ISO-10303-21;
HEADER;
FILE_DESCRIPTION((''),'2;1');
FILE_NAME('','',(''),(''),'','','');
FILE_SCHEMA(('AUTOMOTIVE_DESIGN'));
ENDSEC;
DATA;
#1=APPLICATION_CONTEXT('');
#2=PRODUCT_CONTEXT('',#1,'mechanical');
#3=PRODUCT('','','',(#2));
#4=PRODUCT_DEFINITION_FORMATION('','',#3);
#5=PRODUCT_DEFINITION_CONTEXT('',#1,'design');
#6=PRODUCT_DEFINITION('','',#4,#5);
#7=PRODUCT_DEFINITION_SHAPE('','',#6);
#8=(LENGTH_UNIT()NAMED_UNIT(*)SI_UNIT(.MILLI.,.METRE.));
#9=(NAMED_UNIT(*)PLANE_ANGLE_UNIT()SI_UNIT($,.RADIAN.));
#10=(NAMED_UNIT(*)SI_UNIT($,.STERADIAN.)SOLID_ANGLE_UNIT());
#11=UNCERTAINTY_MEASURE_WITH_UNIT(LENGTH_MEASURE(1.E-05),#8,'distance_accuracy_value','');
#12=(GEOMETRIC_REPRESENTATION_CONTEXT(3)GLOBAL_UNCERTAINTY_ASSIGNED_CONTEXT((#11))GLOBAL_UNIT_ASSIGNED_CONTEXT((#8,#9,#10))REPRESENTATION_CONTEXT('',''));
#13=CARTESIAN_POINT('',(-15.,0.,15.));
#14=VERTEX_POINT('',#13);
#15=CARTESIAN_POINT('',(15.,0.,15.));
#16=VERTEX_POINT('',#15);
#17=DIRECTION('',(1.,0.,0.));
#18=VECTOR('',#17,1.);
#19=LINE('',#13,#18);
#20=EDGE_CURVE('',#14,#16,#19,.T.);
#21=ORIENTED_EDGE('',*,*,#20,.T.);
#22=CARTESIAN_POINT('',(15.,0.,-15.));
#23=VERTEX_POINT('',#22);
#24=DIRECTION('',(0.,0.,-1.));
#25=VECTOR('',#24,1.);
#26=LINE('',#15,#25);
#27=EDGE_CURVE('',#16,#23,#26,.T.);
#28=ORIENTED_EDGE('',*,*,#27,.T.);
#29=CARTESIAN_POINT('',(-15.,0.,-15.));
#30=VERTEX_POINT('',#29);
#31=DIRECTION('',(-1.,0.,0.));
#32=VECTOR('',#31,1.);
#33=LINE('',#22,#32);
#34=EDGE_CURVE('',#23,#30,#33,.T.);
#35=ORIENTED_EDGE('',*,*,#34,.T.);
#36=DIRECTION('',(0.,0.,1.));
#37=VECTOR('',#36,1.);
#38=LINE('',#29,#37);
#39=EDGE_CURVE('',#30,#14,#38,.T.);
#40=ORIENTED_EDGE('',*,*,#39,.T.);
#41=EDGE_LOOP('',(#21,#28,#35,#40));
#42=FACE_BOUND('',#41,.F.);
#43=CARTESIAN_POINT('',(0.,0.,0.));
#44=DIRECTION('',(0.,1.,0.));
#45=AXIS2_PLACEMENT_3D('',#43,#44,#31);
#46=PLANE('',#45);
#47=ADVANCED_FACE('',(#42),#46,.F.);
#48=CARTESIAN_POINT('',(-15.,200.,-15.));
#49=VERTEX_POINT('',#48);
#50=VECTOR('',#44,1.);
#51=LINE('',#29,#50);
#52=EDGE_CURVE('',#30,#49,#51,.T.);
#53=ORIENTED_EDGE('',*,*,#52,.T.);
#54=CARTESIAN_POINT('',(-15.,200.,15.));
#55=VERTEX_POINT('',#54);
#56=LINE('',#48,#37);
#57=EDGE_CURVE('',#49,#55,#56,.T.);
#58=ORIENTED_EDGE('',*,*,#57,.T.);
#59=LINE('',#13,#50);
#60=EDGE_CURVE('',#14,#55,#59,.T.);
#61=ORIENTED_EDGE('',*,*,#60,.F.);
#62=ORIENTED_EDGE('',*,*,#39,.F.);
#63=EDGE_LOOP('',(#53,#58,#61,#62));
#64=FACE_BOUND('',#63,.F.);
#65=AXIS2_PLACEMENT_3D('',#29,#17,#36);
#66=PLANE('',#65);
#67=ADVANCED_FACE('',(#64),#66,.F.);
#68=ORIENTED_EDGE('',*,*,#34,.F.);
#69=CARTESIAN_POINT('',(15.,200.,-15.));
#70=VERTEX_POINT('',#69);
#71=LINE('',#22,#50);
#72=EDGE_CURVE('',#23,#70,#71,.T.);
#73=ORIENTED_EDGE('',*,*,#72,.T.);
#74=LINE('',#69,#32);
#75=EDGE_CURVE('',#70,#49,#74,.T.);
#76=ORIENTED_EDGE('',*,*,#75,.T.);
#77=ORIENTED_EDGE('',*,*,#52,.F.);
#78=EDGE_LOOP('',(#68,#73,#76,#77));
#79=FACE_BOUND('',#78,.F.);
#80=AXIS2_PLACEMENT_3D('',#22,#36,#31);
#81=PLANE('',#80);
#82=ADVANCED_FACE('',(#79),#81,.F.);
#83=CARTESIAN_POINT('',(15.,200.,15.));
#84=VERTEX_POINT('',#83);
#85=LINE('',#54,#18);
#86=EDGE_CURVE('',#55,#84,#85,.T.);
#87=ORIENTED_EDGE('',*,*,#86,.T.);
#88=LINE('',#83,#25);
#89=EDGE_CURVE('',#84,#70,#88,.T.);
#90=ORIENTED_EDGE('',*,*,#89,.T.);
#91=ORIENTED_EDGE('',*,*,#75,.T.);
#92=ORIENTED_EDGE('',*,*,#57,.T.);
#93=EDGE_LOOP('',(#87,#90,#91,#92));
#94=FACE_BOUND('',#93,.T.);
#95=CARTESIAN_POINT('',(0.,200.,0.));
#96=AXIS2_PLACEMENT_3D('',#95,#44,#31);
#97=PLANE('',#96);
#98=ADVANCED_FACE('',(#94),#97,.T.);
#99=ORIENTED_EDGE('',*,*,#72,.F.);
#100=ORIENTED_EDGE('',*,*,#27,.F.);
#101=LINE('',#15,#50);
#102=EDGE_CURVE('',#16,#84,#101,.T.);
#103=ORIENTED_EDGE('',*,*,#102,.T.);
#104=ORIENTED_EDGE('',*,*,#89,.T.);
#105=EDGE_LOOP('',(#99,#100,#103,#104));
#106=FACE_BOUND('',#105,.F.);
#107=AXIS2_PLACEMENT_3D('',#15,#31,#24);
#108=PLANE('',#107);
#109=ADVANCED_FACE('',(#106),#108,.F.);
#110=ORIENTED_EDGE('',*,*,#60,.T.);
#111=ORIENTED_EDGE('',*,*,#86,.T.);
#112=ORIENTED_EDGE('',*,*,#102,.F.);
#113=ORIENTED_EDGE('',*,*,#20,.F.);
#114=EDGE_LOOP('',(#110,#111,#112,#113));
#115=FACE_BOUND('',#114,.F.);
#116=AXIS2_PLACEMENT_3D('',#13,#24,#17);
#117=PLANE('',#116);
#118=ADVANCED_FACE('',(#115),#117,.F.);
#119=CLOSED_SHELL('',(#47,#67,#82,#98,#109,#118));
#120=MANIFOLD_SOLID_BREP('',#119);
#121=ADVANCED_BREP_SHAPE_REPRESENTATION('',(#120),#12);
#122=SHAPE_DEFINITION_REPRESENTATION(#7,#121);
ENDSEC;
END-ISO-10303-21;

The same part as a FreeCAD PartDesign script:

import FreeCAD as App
import Part
import Sketcher

V = App.Vector

doc = App.newDocument("Part")
body = doc.addObject("PartDesign::Body", "Body")

sketch1 = body.newObject("Sketcher::SketchObject", "Sketch")
sketch1.AttachmentSupport = (doc.getObject("XZ_Plane"), [""])
sketch1.MapMode = "FlatFace"
sketch1.addGeometry([
    Part.LineSegment(V(-15, -15, 0), V(-15, 15, 0)),
    Part.LineSegment(V(-15, 15, 0), V(15, 15, 0)),
    Part.LineSegment(V(15, 15, 0), V(15, -15, 0)),
    Part.LineSegment(V(15, -15, 0), V(-15, -15, 0)),
], False)
sketch1.addConstraint([
    Sketcher.Constraint("Coincident", 0, 2, 1, 1),
    Sketcher.Constraint("Coincident", 1, 2, 2, 1),
    Sketcher.Constraint("Coincident", 2, 2, 3, 1),
    Sketcher.Constraint("Coincident", 3, 2, 0, 1),
    Sketcher.Constraint("Vertical", 0),
    Sketcher.Constraint("Horizontal", 1),
    Sketcher.Constraint("Vertical", 2),
    Sketcher.Constraint("Horizontal", 3),
    Sketcher.Constraint("Symmetric", 0, 2, 2, 2, -1, 1),
    Sketcher.Constraint("Equal", 3, 0),
    Sketcher.Constraint("DistanceX", 1, 1, 1, 2, 30.0),
])
pad1 = body.newObject("PartDesign::Pad", "Pad")
pad1.Profile = sketch1
pad1.Length = 200
pad1.Reversed = True

doc.recompute()
